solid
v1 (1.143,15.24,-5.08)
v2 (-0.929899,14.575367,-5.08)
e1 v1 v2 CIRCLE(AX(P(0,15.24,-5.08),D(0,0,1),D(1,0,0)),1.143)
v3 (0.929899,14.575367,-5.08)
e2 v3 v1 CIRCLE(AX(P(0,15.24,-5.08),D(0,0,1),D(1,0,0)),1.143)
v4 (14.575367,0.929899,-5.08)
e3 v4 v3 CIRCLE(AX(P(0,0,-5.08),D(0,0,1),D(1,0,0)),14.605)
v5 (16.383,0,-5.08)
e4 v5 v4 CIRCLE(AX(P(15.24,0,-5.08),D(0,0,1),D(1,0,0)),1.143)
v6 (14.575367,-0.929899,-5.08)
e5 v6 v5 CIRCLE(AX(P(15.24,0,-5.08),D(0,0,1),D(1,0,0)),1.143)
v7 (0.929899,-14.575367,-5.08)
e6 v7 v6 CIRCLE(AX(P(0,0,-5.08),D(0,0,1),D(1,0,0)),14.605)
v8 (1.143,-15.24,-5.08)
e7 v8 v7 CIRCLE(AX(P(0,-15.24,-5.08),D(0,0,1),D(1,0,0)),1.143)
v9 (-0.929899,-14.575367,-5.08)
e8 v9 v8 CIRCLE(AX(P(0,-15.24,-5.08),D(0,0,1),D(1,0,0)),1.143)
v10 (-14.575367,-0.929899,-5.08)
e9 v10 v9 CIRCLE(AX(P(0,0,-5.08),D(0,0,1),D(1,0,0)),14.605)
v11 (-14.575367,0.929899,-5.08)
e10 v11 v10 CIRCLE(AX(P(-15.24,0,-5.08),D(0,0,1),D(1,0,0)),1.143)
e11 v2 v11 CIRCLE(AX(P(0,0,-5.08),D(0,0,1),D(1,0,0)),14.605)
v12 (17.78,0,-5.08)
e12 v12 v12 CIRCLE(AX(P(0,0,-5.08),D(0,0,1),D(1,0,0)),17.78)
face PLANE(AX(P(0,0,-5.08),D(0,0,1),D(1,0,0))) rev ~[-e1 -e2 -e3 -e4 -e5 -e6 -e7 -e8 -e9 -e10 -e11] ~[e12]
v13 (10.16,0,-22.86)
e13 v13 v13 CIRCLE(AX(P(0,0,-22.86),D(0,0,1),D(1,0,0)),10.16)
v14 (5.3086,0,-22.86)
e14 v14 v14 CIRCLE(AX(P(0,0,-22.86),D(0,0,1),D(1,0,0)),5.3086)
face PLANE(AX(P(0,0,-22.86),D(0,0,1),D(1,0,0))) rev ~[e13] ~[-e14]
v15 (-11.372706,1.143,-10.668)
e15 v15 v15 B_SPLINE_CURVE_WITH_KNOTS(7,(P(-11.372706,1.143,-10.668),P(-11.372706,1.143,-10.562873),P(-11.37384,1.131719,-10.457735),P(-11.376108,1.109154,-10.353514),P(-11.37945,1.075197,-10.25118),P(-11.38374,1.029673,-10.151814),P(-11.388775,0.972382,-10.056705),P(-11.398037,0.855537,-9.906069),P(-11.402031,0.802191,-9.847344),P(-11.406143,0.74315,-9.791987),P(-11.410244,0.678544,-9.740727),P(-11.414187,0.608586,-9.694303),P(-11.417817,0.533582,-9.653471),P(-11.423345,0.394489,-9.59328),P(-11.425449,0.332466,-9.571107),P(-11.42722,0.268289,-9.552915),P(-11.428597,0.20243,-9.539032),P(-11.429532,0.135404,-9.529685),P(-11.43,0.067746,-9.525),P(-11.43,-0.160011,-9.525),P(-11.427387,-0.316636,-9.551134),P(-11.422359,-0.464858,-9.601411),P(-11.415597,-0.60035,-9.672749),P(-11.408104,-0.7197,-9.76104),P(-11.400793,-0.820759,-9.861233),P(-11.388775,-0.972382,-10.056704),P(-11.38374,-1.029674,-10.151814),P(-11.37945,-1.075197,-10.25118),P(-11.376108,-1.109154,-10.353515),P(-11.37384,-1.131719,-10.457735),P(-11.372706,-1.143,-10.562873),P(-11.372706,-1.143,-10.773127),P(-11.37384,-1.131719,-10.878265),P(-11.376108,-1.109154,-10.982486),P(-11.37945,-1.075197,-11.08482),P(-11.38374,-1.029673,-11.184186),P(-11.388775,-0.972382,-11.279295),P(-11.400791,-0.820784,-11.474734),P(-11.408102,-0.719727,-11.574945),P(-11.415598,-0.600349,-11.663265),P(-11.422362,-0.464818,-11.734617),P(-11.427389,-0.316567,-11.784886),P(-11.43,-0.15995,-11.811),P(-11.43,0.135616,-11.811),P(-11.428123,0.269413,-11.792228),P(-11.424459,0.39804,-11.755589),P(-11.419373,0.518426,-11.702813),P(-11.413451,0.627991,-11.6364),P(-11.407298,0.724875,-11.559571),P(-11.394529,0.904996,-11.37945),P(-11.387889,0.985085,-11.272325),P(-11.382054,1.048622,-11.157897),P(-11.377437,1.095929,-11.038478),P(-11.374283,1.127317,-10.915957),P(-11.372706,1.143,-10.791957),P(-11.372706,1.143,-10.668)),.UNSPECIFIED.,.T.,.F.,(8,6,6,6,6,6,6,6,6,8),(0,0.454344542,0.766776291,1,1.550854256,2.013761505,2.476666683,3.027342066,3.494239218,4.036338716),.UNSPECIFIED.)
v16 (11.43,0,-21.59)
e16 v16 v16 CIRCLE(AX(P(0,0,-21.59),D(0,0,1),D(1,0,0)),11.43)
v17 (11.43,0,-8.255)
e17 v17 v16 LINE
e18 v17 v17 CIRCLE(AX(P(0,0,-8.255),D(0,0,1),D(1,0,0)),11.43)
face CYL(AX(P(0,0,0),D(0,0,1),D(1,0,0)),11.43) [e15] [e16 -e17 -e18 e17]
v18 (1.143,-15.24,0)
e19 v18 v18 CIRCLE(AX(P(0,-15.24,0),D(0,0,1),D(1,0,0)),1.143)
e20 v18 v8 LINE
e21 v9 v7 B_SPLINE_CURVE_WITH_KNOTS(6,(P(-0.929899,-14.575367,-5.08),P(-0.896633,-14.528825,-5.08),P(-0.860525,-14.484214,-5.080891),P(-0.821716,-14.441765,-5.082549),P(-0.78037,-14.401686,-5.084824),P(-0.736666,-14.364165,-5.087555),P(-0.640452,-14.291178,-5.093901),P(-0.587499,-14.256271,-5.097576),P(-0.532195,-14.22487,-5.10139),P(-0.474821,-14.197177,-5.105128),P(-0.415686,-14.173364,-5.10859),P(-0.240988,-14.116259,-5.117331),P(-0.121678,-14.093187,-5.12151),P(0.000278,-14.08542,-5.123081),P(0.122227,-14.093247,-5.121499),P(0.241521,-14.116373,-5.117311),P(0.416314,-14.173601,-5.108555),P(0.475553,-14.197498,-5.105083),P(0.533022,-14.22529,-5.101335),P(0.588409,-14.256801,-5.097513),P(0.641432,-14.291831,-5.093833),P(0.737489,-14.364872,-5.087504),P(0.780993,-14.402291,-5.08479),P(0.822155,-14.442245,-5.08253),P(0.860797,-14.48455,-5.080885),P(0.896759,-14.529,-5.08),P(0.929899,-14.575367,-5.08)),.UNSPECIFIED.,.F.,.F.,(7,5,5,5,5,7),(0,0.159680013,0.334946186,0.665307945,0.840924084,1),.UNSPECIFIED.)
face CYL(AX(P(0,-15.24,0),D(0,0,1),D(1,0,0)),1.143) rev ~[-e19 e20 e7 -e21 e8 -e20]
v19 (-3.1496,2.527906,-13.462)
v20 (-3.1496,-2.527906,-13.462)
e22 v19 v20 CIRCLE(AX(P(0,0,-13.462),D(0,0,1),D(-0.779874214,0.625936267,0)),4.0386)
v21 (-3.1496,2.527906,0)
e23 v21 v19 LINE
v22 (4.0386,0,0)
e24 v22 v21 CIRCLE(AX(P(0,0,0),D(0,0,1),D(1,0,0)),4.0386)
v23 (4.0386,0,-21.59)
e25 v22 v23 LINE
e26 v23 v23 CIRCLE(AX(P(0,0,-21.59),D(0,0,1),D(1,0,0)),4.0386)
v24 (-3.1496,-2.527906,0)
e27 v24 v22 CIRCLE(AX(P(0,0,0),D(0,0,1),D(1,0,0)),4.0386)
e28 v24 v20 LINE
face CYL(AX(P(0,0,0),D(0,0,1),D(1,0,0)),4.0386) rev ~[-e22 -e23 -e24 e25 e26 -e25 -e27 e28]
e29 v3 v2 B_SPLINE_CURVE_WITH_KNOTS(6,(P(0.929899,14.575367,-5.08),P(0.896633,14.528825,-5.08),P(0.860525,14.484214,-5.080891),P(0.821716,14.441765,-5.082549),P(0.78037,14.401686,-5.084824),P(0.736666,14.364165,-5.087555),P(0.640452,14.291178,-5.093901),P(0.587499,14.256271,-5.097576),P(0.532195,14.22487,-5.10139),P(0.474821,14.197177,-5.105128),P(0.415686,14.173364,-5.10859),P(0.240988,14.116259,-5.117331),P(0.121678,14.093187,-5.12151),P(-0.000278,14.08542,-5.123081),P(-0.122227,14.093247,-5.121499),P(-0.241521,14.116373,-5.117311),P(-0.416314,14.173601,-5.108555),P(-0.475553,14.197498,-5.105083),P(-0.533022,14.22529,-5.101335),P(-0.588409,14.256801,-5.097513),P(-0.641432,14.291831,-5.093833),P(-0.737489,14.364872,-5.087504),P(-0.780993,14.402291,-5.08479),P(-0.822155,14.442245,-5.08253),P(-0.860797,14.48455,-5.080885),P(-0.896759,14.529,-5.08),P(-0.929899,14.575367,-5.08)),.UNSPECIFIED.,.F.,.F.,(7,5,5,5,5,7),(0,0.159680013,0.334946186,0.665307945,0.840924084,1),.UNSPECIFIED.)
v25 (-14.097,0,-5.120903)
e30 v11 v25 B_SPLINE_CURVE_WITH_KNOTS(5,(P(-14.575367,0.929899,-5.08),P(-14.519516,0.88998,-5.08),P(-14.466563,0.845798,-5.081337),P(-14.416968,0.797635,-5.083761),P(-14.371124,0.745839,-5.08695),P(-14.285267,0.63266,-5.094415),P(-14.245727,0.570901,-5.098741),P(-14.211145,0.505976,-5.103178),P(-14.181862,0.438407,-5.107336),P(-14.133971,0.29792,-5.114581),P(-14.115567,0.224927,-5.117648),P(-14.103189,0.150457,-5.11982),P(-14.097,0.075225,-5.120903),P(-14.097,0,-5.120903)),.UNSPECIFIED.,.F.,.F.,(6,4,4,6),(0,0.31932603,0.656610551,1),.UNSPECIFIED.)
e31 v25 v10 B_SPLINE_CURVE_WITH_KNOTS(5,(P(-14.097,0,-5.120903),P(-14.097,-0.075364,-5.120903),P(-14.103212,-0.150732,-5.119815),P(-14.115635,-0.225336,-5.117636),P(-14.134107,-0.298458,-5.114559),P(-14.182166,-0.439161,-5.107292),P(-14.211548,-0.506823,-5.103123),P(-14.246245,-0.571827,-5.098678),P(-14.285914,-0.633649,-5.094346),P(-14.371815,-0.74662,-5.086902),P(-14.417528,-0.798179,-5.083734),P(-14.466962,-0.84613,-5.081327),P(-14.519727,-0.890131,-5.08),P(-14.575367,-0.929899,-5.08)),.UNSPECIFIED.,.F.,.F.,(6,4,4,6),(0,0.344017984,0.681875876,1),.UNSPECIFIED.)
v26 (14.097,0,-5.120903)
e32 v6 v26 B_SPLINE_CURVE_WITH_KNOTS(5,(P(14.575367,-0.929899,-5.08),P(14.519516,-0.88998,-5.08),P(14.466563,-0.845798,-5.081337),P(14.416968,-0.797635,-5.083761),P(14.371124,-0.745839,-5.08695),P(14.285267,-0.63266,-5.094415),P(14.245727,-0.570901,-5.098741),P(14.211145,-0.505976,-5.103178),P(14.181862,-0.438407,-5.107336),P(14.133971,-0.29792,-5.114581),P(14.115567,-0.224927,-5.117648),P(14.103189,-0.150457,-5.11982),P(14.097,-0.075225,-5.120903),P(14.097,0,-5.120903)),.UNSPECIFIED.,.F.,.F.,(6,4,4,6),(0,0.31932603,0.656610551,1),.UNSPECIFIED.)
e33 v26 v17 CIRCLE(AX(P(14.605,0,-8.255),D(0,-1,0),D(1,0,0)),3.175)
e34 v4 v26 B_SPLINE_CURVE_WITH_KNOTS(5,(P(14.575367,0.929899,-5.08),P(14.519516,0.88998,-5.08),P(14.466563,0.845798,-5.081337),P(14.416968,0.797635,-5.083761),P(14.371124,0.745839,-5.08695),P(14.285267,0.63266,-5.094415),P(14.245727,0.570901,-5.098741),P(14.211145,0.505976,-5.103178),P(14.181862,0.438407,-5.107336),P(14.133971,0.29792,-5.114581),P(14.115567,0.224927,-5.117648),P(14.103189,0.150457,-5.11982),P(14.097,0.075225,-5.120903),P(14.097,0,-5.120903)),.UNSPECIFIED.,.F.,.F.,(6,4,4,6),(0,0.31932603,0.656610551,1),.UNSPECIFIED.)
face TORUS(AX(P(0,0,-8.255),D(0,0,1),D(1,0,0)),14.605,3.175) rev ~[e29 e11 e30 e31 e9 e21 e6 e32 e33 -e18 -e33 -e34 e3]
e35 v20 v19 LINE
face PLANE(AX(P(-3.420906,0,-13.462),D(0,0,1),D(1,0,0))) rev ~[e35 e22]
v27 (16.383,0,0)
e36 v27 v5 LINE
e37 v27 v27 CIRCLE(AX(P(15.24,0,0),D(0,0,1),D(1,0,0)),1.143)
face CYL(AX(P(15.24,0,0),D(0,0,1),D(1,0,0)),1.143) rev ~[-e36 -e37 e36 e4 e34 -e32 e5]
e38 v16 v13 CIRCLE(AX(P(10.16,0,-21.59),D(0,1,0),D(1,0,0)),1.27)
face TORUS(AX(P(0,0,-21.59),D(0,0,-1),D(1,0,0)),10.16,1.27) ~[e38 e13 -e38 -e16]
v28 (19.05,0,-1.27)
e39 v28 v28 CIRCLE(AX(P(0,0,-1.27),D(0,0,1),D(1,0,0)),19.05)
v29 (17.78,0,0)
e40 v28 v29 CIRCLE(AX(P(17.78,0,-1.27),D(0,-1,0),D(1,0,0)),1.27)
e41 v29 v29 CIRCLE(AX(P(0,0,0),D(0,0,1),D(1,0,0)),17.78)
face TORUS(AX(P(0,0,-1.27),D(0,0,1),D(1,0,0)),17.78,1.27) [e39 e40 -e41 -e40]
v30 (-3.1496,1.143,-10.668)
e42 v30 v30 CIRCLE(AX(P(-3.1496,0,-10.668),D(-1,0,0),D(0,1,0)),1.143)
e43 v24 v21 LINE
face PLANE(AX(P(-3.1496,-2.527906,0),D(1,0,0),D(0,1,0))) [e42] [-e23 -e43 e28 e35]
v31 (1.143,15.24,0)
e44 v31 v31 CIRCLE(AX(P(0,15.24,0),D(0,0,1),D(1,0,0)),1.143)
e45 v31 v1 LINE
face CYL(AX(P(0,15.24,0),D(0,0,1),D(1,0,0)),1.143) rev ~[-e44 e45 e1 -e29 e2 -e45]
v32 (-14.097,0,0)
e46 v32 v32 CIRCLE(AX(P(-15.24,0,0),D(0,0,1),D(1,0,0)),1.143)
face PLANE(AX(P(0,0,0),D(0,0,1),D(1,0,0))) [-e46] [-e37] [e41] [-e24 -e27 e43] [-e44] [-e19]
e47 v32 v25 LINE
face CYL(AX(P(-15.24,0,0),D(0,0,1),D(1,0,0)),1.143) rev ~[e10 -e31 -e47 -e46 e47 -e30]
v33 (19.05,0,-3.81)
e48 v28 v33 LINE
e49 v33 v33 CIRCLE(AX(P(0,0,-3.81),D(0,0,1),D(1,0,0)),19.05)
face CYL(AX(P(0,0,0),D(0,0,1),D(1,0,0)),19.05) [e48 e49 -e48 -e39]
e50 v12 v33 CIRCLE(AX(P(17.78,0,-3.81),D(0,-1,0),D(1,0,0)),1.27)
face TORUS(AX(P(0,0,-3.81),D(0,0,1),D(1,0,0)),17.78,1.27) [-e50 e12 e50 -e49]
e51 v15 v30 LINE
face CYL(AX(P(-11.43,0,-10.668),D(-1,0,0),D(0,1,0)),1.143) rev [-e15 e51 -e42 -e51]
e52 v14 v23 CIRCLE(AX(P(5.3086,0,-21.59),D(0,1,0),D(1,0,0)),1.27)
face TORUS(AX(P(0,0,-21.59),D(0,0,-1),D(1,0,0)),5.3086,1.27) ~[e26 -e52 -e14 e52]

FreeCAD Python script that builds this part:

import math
import FreeCAD as App
import Part
import Sketcher
Q = App.Units.Quantity


def edges_at(feature, points):
    """Names of the edges that pass closest to the given points."""
    edges = feature.Shape.Edges
    near = lambda p: min(range(len(edges)), key=lambda i: edges[i].distToShape(Part.Vertex(*p))[0])
    return sorted({f"Edge{near(p) + 1}" for p in points})

doc = App.newDocument("Part")
body = doc.addObject("PartDesign::Body", "Body")

# Sketch on XY plane
sketch1 = body.newObject("Sketcher::SketchObject", "Sketch")
sketch1.AttachmentSupport = (doc.getObject("XY_Plane"), [""])
sketch1.MapMode = "FlatFace"
sketch1.addGeometry(Part.Circle(App.Vector(0, 0, 0), App.Vector(0, 0, 1), 11), False)
sketch1.addConstraint(Sketcher.Constraint("Coincident", 0, 3, -1, 1))
sketch1.addConstraint(Sketcher.Constraint("Diameter", 0, Q("0.9 in")))
pad1 = body.newObject("PartDesign::Pad", "Pad")
pad1.Profile = sketch1
pad1.Length = Q("0.9 in")
pad1.Reversed = True

# Sketch on XY plane
sketch2 = body.newObject("Sketcher::SketchObject", "Sketch001")
sketch2.AttachmentSupport = (doc.getObject("XY_Plane"), [""])
sketch2.MapMode = "FlatFace"
sketch2.addGeometry(Part.Circle(App.Vector(0, 0, 0), App.Vector(0, 0, 1), 19.1), False)
sketch2.addGeometry(Part.Circle(App.Vector(0, 0, 0), App.Vector(0, 0, 1), 4), False)
sketch2.addConstraint(Sketcher.Constraint("Coincident", 0, 3, -1, 1))
sketch2.addConstraint(Sketcher.Constraint("Coincident", 1, 3, -1, 1))
sketch2.addConstraint(Sketcher.Constraint("Diameter", 0, Q("1.5 in")))
sketch2.addConstraint(Sketcher.Constraint("Diameter", 1, Q("0.318 in")))
pad2 = body.newObject("PartDesign::Pad", "Pad001")
pad2.Profile = sketch2
pad2.Length = Q("0.2 in")
pad2.Reversed = True

# Sketch on XY plane
sketch3 = body.newObject("Sketcher::SketchObject", "Sketch002")
sketch3.AttachmentSupport = (doc.getObject("XY_Plane"), [""])
sketch3.MapMode = "FlatFace"
sketch3.addGeometry(Part.Circle(App.Vector(0, 0, 0), App.Vector(0, 0, 1), 4), False)
sketch3.addConstraint(Sketcher.Constraint("Coincident", 0, 3, -1, 1))
sketch3.addConstraint(Sketcher.Constraint("Diameter", 0, Q("0.318 in")))
pocket1 = body.newObject("PartDesign::Pocket", "Pocket")
pocket1.Profile = sketch3
pocket1.Length = Q("0.9 in")

# Sketch on XY plane
sketch4 = body.newObject("Sketcher::SketchObject", "Sketch003")
sketch4.AttachmentSupport = (doc.getObject("XY_Plane"), [""])
sketch4.MapMode = "FlatFace"
sketch4.addGeometry(Part.LineSegment(App.Vector(-3.1, -2.5, 0), App.Vector(-3.1, 2.5, 0)), False)
sketch4.addGeometry(Part.ArcOfCircle(Part.Circle(App.Vector(0, 0, 0), App.Vector(0, 0, 1), 4), math.radians(141), math.radians(219)), False)
sketch4.addConstraint(Sketcher.Constraint("Coincident", 0, 1, 1, 2))
sketch4.addConstraint(Sketcher.Constraint("Coincident", 1, 1, 0, 2))
sketch4.addConstraint(Sketcher.Constraint("Vertical", 0))
sketch4.addConstraint(Sketcher.Constraint("Coincident", 1, 3, -1, 1))
sketch4.addConstraint(Sketcher.Constraint("Radius", 1, Q("0.159 in")))
sketch4.addConstraint(Sketcher.Constraint("DistanceX", 0, 1, -1, 1, Q("0.124 in")))
pad3 = body.newObject("PartDesign::Pad", "Pad002")
pad3.Profile = sketch4
pad3.Length = Q("0.53 in")
pad3.Reversed = True

# Sketch on YZ plane
sketch5 = body.newObject("Sketcher::SketchObject", "Sketch004")
sketch5.AttachmentSupport = (doc.getObject("YZ_Plane"), [""])
sketch5.MapMode = "FlatFace"
sketch5.AttachmentOffset = App.Placement(App.Vector(0, 0, -0.45 * 25.4), App.Rotation())
sketch5.addGeometry(Part.Circle(App.Vector(0, -10.7, 0), App.Vector(0, 0, 1), 1.1), False)
sketch5.addConstraint(Sketcher.Constraint("PointOnObject", 0, 3, -2))
sketch5.addConstraint(Sketcher.Constraint("Diameter", 0, Q("0.09 in")))
sketch5.addConstraint(Sketcher.Constraint("DistanceY", 0, 3, -1, 1, Q("0.42 in")))
pocket2 = body.newObject("PartDesign::Pocket", "Pocket001")
pocket2.Profile = sketch5
pocket2.Length = Q("0.45 in")
pocket2.Reversed = True
doc.recompute()

fillet = body.newObject("PartDesign::Fillet", "Fillet")
fillet.Base = (pocket2, edges_at(pocket2, [(-11.43, 0, -5.08)]))
fillet.Radius = Q("0.125 in")
doc.recompute()

fillet2 = body.newObject("PartDesign::Fillet", "Fillet001")
fillet2.Base = (fillet, edges_at(fillet, [
    (-11.43, 0, -22.86),
    (-19.05, 0, -5.08),
    (-4.039, 0, -22.86),
    (-19.05, 0, 0),
]))
fillet2.Radius = Q("0.05 in")

# Sketch on XY plane
sketch6 = body.newObject("Sketcher::SketchObject", "Sketch005")
sketch6.AttachmentSupport = (doc.getObject("XY_Plane"), [""])
sketch6.MapMode = "FlatFace"
sketch6.addGeometry(Part.Circle(App.Vector(15.2, 0, 0), App.Vector(0, 0, 1), 1.1), False)
sketch6.addGeometry(Part.Circle(App.Vector(0, 15.2, 0), App.Vector(0, 0, 1), 1.1), False)
sketch6.addGeometry(Part.Circle(App.Vector(0, -15.2, 0), App.Vector(0, 0, 1), 1.1), False)
sketch6.addGeometry(Part.Circle(App.Vector(-15.2, 0, 0), App.Vector(0, 0, 1), 1.1), False)
sketch6.addConstraint(Sketcher.Constraint("Equal", 0, 1))
sketch6.addConstraint(Sketcher.Constraint("Equal", 1, 2))
sketch6.addConstraint(Sketcher.Constraint("Equal", 2, 3))
sketch6.addConstraint(Sketcher.Constraint("Symmetric", 1, 3, 2, 3, -1, 1))
sketch6.addConstraint(Sketcher.Constraint("Symmetric", 0, 3, 3, 3, -1, 1))
sketch6.addConstraint(Sketcher.Constraint("PointOnObject", 0, 3, -1))
sketch6.addConstraint(Sketcher.Constraint("PointOnObject", 1, 3, -2))
sketch6.addConstraint(Sketcher.Constraint("Diameter", 0, Q("0.09 in")))
sketch6.addConstraint(Sketcher.Constraint("DistanceX", -1, 1, 0, 3, Q("0.6 in")))
sketch6.addConstraint(Sketcher.Constraint("DistanceY", -1, 1, 1, 3, Q("0.6 in")))
pocket3 = body.newObject("PartDesign::Pocket", "Pocket002")
pocket3.Profile = sketch6
pocket3.Type = "ThroughAll"

doc.recompute()
